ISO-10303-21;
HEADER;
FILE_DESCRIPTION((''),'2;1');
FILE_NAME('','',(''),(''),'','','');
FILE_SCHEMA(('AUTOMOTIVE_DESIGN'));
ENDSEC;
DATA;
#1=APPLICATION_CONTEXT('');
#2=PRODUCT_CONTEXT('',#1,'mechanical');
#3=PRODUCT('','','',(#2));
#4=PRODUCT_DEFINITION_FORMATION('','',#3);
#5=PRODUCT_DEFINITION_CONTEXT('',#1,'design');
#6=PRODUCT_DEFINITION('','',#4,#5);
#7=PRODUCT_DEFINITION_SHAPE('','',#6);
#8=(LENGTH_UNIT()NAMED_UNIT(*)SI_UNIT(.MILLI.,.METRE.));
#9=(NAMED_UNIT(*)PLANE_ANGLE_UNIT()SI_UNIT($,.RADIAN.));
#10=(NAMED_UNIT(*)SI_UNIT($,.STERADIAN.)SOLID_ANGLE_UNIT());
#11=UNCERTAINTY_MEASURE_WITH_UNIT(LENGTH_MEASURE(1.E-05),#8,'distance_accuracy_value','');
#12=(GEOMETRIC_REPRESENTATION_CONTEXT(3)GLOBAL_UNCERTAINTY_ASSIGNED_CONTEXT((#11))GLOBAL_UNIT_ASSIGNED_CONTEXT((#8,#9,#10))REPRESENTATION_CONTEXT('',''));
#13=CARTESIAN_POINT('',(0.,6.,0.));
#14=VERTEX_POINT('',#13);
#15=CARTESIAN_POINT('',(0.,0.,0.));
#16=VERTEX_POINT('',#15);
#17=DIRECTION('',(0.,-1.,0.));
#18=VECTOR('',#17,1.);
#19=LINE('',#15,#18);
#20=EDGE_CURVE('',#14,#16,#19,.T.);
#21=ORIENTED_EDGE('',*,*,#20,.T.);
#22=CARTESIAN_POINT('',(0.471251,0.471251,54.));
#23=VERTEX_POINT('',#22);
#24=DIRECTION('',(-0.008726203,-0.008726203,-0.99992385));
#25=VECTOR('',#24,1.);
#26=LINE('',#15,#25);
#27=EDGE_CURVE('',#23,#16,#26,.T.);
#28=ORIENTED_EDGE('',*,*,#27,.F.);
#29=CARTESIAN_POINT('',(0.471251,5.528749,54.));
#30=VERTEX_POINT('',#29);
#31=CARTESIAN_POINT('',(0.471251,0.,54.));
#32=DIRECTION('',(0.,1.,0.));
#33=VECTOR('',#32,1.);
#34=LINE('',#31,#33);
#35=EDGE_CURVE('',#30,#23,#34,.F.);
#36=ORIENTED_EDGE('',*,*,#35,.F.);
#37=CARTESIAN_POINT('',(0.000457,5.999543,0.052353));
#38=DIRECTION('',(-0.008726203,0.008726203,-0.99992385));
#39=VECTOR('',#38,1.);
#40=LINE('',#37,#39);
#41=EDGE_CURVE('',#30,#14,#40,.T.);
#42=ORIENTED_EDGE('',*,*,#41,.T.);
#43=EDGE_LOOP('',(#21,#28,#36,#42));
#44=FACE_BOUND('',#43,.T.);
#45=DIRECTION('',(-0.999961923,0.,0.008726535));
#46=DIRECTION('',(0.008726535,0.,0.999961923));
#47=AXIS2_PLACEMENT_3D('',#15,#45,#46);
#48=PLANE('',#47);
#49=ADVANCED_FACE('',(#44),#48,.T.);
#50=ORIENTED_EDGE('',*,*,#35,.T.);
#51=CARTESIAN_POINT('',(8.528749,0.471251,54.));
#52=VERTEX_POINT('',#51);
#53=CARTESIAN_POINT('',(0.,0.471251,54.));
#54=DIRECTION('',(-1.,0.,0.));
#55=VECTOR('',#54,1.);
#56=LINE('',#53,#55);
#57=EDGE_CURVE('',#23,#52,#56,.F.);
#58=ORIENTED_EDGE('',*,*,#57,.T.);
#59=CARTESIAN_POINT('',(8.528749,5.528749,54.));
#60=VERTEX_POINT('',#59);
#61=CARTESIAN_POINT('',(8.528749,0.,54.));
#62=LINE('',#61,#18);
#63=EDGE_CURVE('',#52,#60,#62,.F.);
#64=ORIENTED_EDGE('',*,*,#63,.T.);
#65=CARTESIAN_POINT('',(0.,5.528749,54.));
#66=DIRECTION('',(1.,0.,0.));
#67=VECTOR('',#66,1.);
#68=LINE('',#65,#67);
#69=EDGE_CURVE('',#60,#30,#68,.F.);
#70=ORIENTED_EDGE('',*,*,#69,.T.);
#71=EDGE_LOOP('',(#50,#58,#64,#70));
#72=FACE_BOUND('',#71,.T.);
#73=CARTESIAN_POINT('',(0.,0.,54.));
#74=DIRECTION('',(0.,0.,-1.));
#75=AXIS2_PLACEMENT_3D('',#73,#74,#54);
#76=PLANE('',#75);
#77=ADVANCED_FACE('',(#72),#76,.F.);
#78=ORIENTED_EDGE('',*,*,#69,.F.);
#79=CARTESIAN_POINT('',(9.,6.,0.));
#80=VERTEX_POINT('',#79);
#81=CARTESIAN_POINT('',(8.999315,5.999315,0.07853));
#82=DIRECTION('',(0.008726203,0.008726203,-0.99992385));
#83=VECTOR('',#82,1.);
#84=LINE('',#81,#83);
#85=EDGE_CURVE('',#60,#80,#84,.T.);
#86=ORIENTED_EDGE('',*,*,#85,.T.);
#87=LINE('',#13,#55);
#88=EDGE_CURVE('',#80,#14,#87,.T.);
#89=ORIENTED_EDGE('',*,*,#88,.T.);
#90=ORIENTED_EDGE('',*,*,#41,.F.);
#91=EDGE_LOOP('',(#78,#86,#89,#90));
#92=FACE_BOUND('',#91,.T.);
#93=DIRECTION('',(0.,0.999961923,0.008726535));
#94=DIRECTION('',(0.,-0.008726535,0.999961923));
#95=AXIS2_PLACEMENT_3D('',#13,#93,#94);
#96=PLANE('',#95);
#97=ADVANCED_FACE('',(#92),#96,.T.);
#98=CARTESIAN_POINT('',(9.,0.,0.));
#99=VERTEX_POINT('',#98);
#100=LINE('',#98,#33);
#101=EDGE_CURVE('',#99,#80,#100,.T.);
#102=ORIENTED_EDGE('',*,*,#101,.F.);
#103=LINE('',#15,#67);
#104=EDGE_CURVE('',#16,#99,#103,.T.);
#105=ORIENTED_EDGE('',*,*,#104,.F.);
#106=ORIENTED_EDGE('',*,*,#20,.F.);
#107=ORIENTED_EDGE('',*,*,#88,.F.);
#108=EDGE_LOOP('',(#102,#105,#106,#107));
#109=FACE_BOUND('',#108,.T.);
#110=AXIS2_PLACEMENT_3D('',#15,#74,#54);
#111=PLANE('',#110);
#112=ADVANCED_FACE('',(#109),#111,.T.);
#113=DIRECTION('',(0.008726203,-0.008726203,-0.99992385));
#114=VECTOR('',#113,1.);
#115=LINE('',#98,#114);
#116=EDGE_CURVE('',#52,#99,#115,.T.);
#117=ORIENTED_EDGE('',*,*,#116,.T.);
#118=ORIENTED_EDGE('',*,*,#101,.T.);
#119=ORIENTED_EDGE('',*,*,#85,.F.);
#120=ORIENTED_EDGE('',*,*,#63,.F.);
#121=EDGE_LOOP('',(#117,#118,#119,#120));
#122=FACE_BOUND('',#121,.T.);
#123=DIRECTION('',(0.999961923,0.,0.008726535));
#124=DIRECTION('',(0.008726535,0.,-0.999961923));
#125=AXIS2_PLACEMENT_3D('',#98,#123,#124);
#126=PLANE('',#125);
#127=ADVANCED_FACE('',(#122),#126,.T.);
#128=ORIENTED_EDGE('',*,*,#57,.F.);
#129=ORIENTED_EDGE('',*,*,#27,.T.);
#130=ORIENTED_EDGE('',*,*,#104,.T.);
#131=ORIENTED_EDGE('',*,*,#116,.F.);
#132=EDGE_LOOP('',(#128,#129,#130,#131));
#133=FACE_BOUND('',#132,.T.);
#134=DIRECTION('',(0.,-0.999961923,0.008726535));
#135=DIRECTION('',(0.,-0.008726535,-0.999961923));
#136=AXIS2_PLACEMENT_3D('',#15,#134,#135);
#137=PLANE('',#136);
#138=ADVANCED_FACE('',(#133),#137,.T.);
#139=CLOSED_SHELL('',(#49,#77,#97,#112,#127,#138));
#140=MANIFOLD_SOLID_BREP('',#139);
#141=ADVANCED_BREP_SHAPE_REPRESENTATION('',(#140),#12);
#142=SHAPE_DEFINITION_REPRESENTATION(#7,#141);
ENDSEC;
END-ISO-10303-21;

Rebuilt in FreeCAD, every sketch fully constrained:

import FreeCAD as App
import Part
import Sketcher

V = App.Vector
Q = App.Units.Quantity

doc = App.newDocument("Part")
body = doc.addObject("PartDesign::Body", "Body")

sketch1 = body.newObject("Sketcher::SketchObject", "Sketch")
sketch1.AttachmentSupport = (doc.getObject("XY_Plane"), [""])
sketch1.MapMode = "FlatFace"
sketch1.addGeometry(Part.LineSegment(V(0, 6, 0), V(0, 0, 0)), False)
sketch1.addGeometry(Part.LineSegment(V(0, 0, 0), V(9, 0, 0)), False)
sketch1.addGeometry(Part.LineSegment(V(9, 0, 0), V(9, 6, 0)), False)
sketch1.addGeometry(Part.LineSegment(V(9, 6, 0), V(0, 6, 0)), False)
sketch1.addConstraint(Sketcher.Constraint("Coincident", 0, 2, 1, 1))
sketch1.addConstraint(Sketcher.Constraint("Coincident", 1, 2, 2, 1))
sketch1.addConstraint(Sketcher.Constraint("Coincident", 2, 2, 3, 1))
sketch1.addConstraint(Sketcher.Constraint("Coincident", 3, 2, 0, 1))
sketch1.addConstraint(Sketcher.Constraint("Vertical", 0))
sketch1.addConstraint(Sketcher.Constraint("Horizontal", 1))
sketch1.addConstraint(Sketcher.Constraint("Vertical", 2))
sketch1.addConstraint(Sketcher.Constraint("Horizontal", 3))
sketch1.addConstraint(Sketcher.Constraint("Coincident", 0, 2, -1, 1))
sketch1.addConstraint(Sketcher.Constraint("DistanceX", 1, 1, 1, 2, Q("9 mm")))
sketch1.addConstraint(Sketcher.Constraint("DistanceY", 0, 2, 0, 1, Q("6 mm")))
pad1 = body.newObject("PartDesign::Pad", "Pad")
pad1.Profile = sketch1
pad1.Length = 54
pad1.TaperAngle = -0.5

doc.recompute()
